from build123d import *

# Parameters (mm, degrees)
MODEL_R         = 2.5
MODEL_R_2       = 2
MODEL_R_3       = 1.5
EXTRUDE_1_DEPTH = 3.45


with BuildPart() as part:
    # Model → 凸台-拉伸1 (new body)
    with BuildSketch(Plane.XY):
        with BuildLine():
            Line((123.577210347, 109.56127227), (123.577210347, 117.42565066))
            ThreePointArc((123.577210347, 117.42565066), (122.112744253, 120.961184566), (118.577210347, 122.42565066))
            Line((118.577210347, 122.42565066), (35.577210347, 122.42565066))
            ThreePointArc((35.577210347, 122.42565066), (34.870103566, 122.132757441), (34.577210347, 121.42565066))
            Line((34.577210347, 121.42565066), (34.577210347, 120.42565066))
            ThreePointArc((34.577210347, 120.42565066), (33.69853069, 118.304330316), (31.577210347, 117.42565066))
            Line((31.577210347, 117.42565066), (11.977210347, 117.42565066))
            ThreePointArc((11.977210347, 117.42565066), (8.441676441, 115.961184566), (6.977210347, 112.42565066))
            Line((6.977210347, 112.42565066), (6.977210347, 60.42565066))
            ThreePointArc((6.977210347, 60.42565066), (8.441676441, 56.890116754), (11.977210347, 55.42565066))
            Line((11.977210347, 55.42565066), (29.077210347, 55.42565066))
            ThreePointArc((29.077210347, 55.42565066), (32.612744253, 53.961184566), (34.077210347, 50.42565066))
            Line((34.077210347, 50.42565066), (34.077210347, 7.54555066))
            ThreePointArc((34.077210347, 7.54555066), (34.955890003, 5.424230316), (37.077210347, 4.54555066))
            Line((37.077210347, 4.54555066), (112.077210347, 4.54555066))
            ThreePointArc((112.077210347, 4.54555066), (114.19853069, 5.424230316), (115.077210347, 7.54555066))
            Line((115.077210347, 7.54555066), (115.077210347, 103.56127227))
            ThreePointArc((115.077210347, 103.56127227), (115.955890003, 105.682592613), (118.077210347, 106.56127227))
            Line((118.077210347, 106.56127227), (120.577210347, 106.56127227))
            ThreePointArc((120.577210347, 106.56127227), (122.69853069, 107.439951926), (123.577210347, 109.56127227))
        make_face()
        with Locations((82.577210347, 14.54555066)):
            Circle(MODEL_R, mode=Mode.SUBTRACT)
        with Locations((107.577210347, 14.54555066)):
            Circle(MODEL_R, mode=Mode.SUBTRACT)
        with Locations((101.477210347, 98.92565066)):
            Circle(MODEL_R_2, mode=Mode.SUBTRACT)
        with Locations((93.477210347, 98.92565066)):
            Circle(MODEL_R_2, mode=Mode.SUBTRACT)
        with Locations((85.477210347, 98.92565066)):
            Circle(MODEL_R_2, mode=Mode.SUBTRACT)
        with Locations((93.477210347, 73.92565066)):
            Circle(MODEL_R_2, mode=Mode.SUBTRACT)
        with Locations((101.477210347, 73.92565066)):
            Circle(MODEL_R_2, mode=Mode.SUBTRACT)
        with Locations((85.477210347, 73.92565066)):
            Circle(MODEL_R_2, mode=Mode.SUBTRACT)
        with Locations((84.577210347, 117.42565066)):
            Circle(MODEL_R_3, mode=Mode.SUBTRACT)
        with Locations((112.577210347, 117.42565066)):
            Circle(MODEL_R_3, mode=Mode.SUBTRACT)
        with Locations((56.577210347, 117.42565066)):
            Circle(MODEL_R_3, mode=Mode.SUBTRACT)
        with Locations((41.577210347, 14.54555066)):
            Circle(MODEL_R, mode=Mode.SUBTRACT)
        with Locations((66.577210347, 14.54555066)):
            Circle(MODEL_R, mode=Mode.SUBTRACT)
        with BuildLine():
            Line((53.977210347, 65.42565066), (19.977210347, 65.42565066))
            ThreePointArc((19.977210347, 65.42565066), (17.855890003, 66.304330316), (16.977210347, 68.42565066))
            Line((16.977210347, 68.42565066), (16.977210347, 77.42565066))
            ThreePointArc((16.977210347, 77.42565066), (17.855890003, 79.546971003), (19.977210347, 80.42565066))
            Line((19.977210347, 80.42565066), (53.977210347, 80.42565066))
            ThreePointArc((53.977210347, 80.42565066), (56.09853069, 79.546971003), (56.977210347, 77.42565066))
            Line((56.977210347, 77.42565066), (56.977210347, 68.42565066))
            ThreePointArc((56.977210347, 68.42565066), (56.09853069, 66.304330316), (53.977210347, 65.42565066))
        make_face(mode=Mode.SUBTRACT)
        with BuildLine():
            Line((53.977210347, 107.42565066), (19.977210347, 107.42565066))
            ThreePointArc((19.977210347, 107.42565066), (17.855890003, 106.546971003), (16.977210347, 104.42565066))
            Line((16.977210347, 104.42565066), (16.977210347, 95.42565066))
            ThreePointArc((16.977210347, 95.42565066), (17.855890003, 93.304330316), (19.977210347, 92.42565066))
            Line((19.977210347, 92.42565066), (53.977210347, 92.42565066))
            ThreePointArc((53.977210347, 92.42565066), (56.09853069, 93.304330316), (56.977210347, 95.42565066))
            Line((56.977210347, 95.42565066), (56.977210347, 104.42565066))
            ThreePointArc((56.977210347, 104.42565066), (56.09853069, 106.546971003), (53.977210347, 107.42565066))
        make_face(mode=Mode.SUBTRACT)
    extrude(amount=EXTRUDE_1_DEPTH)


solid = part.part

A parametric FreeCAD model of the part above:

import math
import FreeCAD as App
import Part
import Sketcher
from FreeCAD import Vector
Q = App.Units.Quantity

doc = App.newDocument("Part")
body = doc.addObject("PartDesign::Body", "Body")

# Sketch on XY plane
sketch1 = doc.addObject("Sketcher::SketchObject", "Sketch")
body.addObject(sketch1)
sketch1.AttachmentSupport = (doc.XY_Plane, [""])
sketch1.MapMode = "FlatFace"
sketch1.addGeometry([
    Part.LineSegment(Vector(123.57721, 109.561272, 0), Vector(123.57721, 117.425651, 0)),  # 0
    Part.ArcOfCircle(Part.Circle(Vector(118.57721, 117.425651, 0), Vector(0, 0, 1), 5), math.radians(0), math.radians(90)),  # 1
    Part.LineSegment(Vector(118.57721, 122.425651, 0), Vector(35.57721, 122.425651, 0)),  # 2
    Part.ArcOfCircle(Part.Circle(Vector(35.57721, 121.425651, 0), Vector(0, 0, 1), 1), math.radians(90), math.radians(180)),  # 3
    Part.LineSegment(Vector(34.57721, 121.425651, 0), Vector(34.57721, 120.425651, 0)),  # 4
    Part.ArcOfCircle(Part.Circle(Vector(31.57721, 120.425651, 0), Vector(0, 0, 1), 3), math.radians(-90), math.radians(0)),  # 5
    Part.LineSegment(Vector(31.57721, 117.425651, 0), Vector(11.97721, 117.425651, 0)),  # 6
    Part.ArcOfCircle(Part.Circle(Vector(11.97721, 112.425651, 0), Vector(0, 0, 1), 5), math.radians(90), math.radians(180)),  # 7
    Part.LineSegment(Vector(6.97721, 112.425651, 0), Vector(6.97721, 60.425651, 0)),  # 8
    Part.ArcOfCircle(Part.Circle(Vector(11.97721, 60.425651, 0), Vector(0, 0, 1), 5), math.radians(180), math.radians(270)),  # 9
    Part.LineSegment(Vector(11.97721, 55.425651, 0), Vector(29.07721, 55.425651, 0)),  # 10
    Part.ArcOfCircle(Part.Circle(Vector(29.07721, 50.425651, 0), Vector(0, 0, 1), 5), math.radians(0), math.radians(90)),  # 11
    Part.LineSegment(Vector(34.07721, 50.425651, 0), Vector(34.07721, 7.545551, 0)),  # 12
    Part.ArcOfCircle(Part.Circle(Vector(37.07721, 7.545551, 0), Vector(0, 0, 1), 3), math.radians(180), math.radians(270)),  # 13
    Part.LineSegment(Vector(37.07721, 4.545551, 0), Vector(112.07721, 4.545551, 0)),  # 14
    Part.ArcOfCircle(Part.Circle(Vector(112.07721, 7.545551, 0), Vector(0, 0, 1), 3), math.radians(-90), math.radians(0)),  # 15
    Part.LineSegment(Vector(115.07721, 7.545551, 0), Vector(115.07721, 103.561272, 0)),  # 16
    Part.ArcOfCircle(Part.Circle(Vector(118.07721, 103.561272, 0), Vector(0, 0, 1), 3), math.radians(90), math.radians(180)),  # 17
    Part.LineSegment(Vector(118.07721, 106.561272, 0), Vector(120.57721, 106.561272, 0)),  # 18
    Part.ArcOfCircle(Part.Circle(Vector(120.57721, 109.561272, 0), Vector(0, 0, 1), 3), math.radians(-90), math.radians(0)),  # 19
    Part.Circle(Vector(41.57721, 14.545551, 0), Vector(0, 0, 1), 2.5),  # 20
    Part.Circle(Vector(66.57721, 14.545551, 0), Vector(0, 0, 1), 2.5),  # 21
    Part.Circle(Vector(82.57721, 14.545551, 0), Vector(0, 0, 1), 2.5),  # 22
    Part.Circle(Vector(107.57721, 14.545551, 0), Vector(0, 0, 1), 2.5),  # 23
    Part.ArcOfCircle(Part.Circle(Vector(53.97721, 68.425651, 0), Vector(0, 0, 1), 3), math.radians(-90), math.radians(0)),  # 24
    Part.LineSegment(Vector(53.97721, 65.425651, 0), Vector(19.97721, 65.425651, 0)),  # 25
    Part.ArcOfCircle(Part.Circle(Vector(19.97721, 68.425651, 0), Vector(0, 0, 1), 3), math.radians(180), math.radians(270)),  # 26
    Part.LineSegment(Vector(16.97721, 68.425651, 0), Vector(16.97721, 77.425651, 0)),  # 27
    Part.ArcOfCircle(Part.Circle(Vector(19.97721, 77.425651, 0), Vector(0, 0, 1), 3), math.radians(90), math.radians(180)),  # 28
    Part.LineSegment(Vector(19.97721, 80.425651, 0), Vector(53.97721, 80.425651, 0)),  # 29
    Part.ArcOfCircle(Part.Circle(Vector(53.97721, 77.425651, 0), Vector(0, 0, 1), 3), math.radians(0), math.radians(90)),  # 30
    Part.LineSegment(Vector(56.97721, 77.425651, 0), Vector(56.97721, 68.425651, 0)),  # 31
    Part.LineSegment(Vector(19.97721, 107.425651, 0), Vector(53.97721, 107.425651, 0)),  # 32
    Part.ArcOfCircle(Part.Circle(Vector(53.97721, 104.425651, 0), Vector(0, 0, 1), 3), math.radians(0), math.radians(90)),  # 33
    Part.LineSegment(Vector(56.97721, 104.425651, 0), Vector(56.97721, 95.425651, 0)),  # 34
    Part.ArcOfCircle(Part.Circle(Vector(53.97721, 95.425651, 0), Vector(0, 0, 1), 3), math.radians(-90), math.radians(0)),  # 35
    Part.LineSegment(Vector(53.97721, 92.425651, 0), Vector(19.97721, 92.425651, 0)),  # 36
    Part.ArcOfCircle(Part.Circle(Vector(19.97721, 95.425651, 0), Vector(0, 0, 1), 3), math.radians(180), math.radians(270)),  # 37
    Part.LineSegment(Vector(16.97721, 95.425651, 0), Vector(16.97721, 104.425651, 0)),  # 38
    Part.ArcOfCircle(Part.Circle(Vector(19.97721, 104.425651, 0), Vector(0, 0, 1), 3), math.radians(90), math.radians(180)),  # 39
    Part.Circle(Vector(56.57721, 117.425651, 0), Vector(0, 0, 1), 1.5),  # 40
    Part.Circle(Vector(85.47721, 73.925651, 0), Vector(0, 0, 1), 2),  # 41
    Part.Circle(Vector(93.47721, 73.925651, 0), Vector(0, 0, 1), 2),  # 42
    Part.Circle(Vector(101.47721, 73.925651, 0), Vector(0, 0, 1), 2),  # 43
    Part.Circle(Vector(85.47721, 98.925651, 0), Vector(0, 0, 1), 2),  # 44
    Part.Circle(Vector(84.57721, 117.425651, 0), Vector(0, 0, 1), 1.5),  # 45
    Part.Circle(Vector(93.47721, 98.925651, 0), Vector(0, 0, 1), 2),  # 46
    Part.Circle(Vector(101.47721, 98.925651, 0), Vector(0, 0, 1), 2),  # 47
    Part.Circle(Vector(112.57721, 117.425651, 0), Vector(0, 0, 1), 1.5),  # 48
], False)
sketch1.addConstraint([
    Sketcher.Constraint("Tangent", 0, 2, 1, 1),
    Sketcher.Constraint("Tangent", 1, 2, 2, 1),
    Sketcher.Constraint("Tangent", 2, 2, 3, 1),
    Sketcher.Constraint("Tangent", 3, 2, 4, 1),
    Sketcher.Constraint("Tangent", 4, 2, 5, 2),
    Sketcher.Constraint("Tangent", 5, 1, 6, 1),
    Sketcher.Constraint("Tangent", 6, 2, 7, 1),
    Sketcher.Constraint("Tangent", 7, 2, 8, 1),
    Sketcher.Constraint("Tangent", 8, 2, 9, 1),
    Sketcher.Constraint("Tangent", 9, 2, 10, 1),
    Sketcher.Constraint("Tangent", 10, 2, 11, 2),
    Sketcher.Constraint("Tangent", 11, 1, 12, 1),
    Sketcher.Constraint("Tangent", 12, 2, 13, 1),
    Sketcher.Constraint("Tangent", 13, 2, 14, 1),
    Sketcher.Constraint("Tangent", 14, 2, 15, 1),
    Sketcher.Constraint("Tangent", 15, 2, 16, 1),
    Sketcher.Constraint("Tangent", 16, 2, 17, 2),
    Sketcher.Constraint("Tangent", 17, 1, 18, 1),
    Sketcher.Constraint("Tangent", 18, 2, 19, 1),
    Sketcher.Constraint("Tangent", 19, 2, 0, 1),
    Sketcher.Constraint("Tangent", 24, 1, 25, 1),
    Sketcher.Constraint("Tangent", 25, 2, 26, 2),
    Sketcher.Constraint("Tangent", 26, 1, 27, 1),
    Sketcher.Constraint("Tangent", 27, 2, 28, 2),
    Sketcher.Constraint("Tangent", 28, 1, 29, 1),
    Sketcher.Constraint("Tangent", 29, 2, 30, 2),
    Sketcher.Constraint("Tangent", 30, 1, 31, 1),
    Sketcher.Constraint("Tangent", 31, 2, 24, 2),
    Sketcher.Constraint("Tangent", 32, 2, 33, 2),
    Sketcher.Constraint("Tangent", 33, 1, 34, 1),
    Sketcher.Constraint("Tangent", 34, 2, 35, 2),
    Sketcher.Constraint("Tangent", 35, 1, 36, 1),
    Sketcher.Constraint("Tangent", 36, 2, 37, 2),
    Sketcher.Constraint("Tangent", 37, 1, 38, 1),
    Sketcher.Constraint("Tangent", 38, 2, 39, 2),
    Sketcher.Constraint("Tangent", 39, 1, 32, 1),
    Sketcher.Constraint("Vertical", 0),
    Sketcher.Constraint("Horizontal", 2),
    Sketcher.Constraint("Vertical", 4),
    Sketcher.Constraint("Horizontal", 6),
    Sketcher.Constraint("Vertical", 8),
    Sketcher.Constraint("Horizontal", 10),
    Sketcher.Constraint("Vertical", 12),
    Sketcher.Constraint("Horizontal", 14),
    Sketcher.Constraint("Vertical", 16),
    Sketcher.Constraint("Horizontal", 18),
    Sketcher.Constraint("Horizontal", 25),
    Sketcher.Constraint("Vertical", 27),
    Sketcher.Constraint("Horizontal", 29),
    Sketcher.Constraint("Vertical", 31),
    Sketcher.Constraint("Horizontal", 32),
    Sketcher.Constraint("Vertical", 34),
    Sketcher.Constraint("Horizontal", 36),
    Sketcher.Constraint("Vertical", 38),
    Sketcher.Constraint("Equal", 1, 7),
    Sketcher.Constraint("Equal", 7, 9),
    Sketcher.Constraint("Equal", 9, 11),
    Sketcher.Constraint("Equal", 5, 13),
    Sketcher.Constraint("Equal", 13, 15),
    Sketcher.Constraint("Equal", 15, 17),
    Sketcher.Constraint("Equal", 17, 19),
    Sketcher.Constraint("Equal", 20, 21),
    Sketcher.Constraint("Equal", 21, 22),
    Sketcher.Constraint("Equal", 22, 23),
    Sketcher.Constraint("Equal", 19, 24),
    Sketcher.Constraint("Equal", 24, 26),
    Sketcher.Constraint("Equal", 26, 28),
    Sketcher.Constraint("Equal", 28, 30),
    Sketcher.Constraint("Equal", 30, 33),
    Sketcher.Constraint("Equal", 33, 35),
    Sketcher.Constraint("Equal", 35, 37),
    Sketcher.Constraint("Equal", 37, 39),
    Sketcher.Constraint("Equal", 41, 42),
    Sketcher.Constraint("Equal", 42, 43),
    Sketcher.Constraint("Equal", 43, 44),
    Sketcher.Constraint("Equal", 40, 45),
    Sketcher.Constraint("Equal", 44, 46),
    Sketcher.Constraint("Equal", 46, 47),
    Sketcher.Constraint("Equal", 45, 48),
    Sketcher.Constraint("Horizontal", 20, 3, 21, 3),
    Sketcher.Constraint("Horizontal", 21, 3, 22, 3),
    Sketcher.Constraint("Horizontal", 22, 3, 23, 3),
    Sketcher.Constraint("Horizontal", 1, 3, 40, 3),
    Sketcher.Constraint("Horizontal", 41, 3, 42, 3),
    Sketcher.Constraint("Horizontal", 42, 3, 43, 3),
    Sketcher.Constraint("Horizontal", 40, 3, 45, 3),
    Sketcher.Constraint("Horizontal", 44, 3, 46, 3),
    Sketcher.Constraint("Horizontal", 46, 3, 47, 3),
    Sketcher.Constraint("Horizontal", 45, 3, 48, 3),
    Sketcher.Constraint("Horizontal", 0, 2, 5, 1),
    Sketcher.Constraint("Vertical", 30, 3, 33, 3),
    Sketcher.Constraint("Vertical", 28, 3, 37, 3),
    Sketcher.Constraint("Vertical", 41, 3, 44, 3),
    Sketcher.Constraint("Vertical", 42, 3, 46, 3),
    Sketcher.Constraint("Vertical", 43, 3, 47, 3),
    Sketcher.Constraint("Equal", 31, 34),
    Sketcher.Constraint("Diameter", 20, Q("5 mm")),
    Sketcher.Constraint("Diameter", 40, Q("3 mm")),
    Sketcher.Constraint("Diameter", 41, Q("4 mm")),
    Sketcher.Constraint("Radius", 1, Q("5 mm")),
    Sketcher.Constraint("Radius", 3, Q("1 mm")),
    Sketcher.Constraint("Radius", 5, Q("3 mm")),
    Sketcher.Constraint("DistanceX", 2, 2, 2, 1, Q("83 mm")),
    Sketcher.Constraint("DistanceX", 14, 1, 14, 2, Q("75 mm")),
    Sketcher.Constraint("DistanceX", 25, 2, 25, 1, Q("34 mm")),
    Sketcher.Constraint("DistanceY", 8, 2, 8, 1, Q("52 mm")),
    Sketcher.Constraint("DistanceY", 27, 1, 27, 2, Q("9 mm")),
    Sketcher.Constraint("DistanceX", 6, 2, 6, 1, Q("19.6 mm")),
    Sketcher.Constraint("DistanceX", 10, 1, 10, 2, Q("17.1 mm")),
    Sketcher.Constraint("DistanceY", 12, 2, 12, 1, Q("42.8801 mm")),
    Sketcher.Constraint("DistanceY", 0, 1, 0, 2, Q("7.864378 mm")),
    Sketcher.Constraint("DistanceX", -1, 1, 1, 3, Q("118.57721 mm")),
    Sketcher.Constraint("DistanceY", -1, 1, 1, 3, Q("117.425651 mm")),
    Sketcher.Constraint("DistanceX", -1, 1, 20, 3, Q("41.57721 mm")),
    Sketcher.Constraint("DistanceY", -1, 1, 20, 3, Q("14.545551 mm")),
    Sketcher.Constraint("DistanceX", -1, 1, 21, 3, Q("66.57721 mm")),
    Sketcher.Constraint("DistanceX", -1, 1, 22, 3, Q("82.57721 mm")),
    Sketcher.Constraint("DistanceX", -1, 1, 23, 3, Q("107.57721 mm")),
    Sketcher.Constraint("DistanceX", -1, 1, 24, 3, Q("53.97721 mm")),
    Sketcher.Constraint("DistanceY", -1, 1, 24, 3, Q("68.425651 mm")),
    Sketcher.Constraint("DistanceY", -1, 1, 33, 3, Q("104.425651 mm")),
    Sketcher.Constraint("DistanceX", -1, 1, 40, 3, Q("56.57721 mm")),
    Sketcher.Constraint("DistanceX", -1, 1, 41, 3, Q("85.47721 mm")),
    Sketcher.Constraint("DistanceY", -1, 1, 41, 3, Q("73.925651 mm")),
    Sketcher.Constraint("DistanceX", -1, 1, 42, 3, Q("93.47721 mm")),
    Sketcher.Constraint("DistanceX", -1, 1, 43, 3, Q("101.47721 mm")),
    Sketcher.Constraint("DistanceY", -1, 1, 44, 3, Q("98.925651 mm")),
    Sketcher.Constraint("DistanceX", -1, 1, 45, 3, Q("84.57721 mm")),
    Sketcher.Constraint("DistanceX", -1, 1, 48, 3, Q("112.57721 mm")),
])
pad1 = doc.addObject("PartDesign::Pad", "Pad")
body.addObject(pad1)
pad1.Profile = sketch1
pad1.Length = 3.45

doc.recompute()
